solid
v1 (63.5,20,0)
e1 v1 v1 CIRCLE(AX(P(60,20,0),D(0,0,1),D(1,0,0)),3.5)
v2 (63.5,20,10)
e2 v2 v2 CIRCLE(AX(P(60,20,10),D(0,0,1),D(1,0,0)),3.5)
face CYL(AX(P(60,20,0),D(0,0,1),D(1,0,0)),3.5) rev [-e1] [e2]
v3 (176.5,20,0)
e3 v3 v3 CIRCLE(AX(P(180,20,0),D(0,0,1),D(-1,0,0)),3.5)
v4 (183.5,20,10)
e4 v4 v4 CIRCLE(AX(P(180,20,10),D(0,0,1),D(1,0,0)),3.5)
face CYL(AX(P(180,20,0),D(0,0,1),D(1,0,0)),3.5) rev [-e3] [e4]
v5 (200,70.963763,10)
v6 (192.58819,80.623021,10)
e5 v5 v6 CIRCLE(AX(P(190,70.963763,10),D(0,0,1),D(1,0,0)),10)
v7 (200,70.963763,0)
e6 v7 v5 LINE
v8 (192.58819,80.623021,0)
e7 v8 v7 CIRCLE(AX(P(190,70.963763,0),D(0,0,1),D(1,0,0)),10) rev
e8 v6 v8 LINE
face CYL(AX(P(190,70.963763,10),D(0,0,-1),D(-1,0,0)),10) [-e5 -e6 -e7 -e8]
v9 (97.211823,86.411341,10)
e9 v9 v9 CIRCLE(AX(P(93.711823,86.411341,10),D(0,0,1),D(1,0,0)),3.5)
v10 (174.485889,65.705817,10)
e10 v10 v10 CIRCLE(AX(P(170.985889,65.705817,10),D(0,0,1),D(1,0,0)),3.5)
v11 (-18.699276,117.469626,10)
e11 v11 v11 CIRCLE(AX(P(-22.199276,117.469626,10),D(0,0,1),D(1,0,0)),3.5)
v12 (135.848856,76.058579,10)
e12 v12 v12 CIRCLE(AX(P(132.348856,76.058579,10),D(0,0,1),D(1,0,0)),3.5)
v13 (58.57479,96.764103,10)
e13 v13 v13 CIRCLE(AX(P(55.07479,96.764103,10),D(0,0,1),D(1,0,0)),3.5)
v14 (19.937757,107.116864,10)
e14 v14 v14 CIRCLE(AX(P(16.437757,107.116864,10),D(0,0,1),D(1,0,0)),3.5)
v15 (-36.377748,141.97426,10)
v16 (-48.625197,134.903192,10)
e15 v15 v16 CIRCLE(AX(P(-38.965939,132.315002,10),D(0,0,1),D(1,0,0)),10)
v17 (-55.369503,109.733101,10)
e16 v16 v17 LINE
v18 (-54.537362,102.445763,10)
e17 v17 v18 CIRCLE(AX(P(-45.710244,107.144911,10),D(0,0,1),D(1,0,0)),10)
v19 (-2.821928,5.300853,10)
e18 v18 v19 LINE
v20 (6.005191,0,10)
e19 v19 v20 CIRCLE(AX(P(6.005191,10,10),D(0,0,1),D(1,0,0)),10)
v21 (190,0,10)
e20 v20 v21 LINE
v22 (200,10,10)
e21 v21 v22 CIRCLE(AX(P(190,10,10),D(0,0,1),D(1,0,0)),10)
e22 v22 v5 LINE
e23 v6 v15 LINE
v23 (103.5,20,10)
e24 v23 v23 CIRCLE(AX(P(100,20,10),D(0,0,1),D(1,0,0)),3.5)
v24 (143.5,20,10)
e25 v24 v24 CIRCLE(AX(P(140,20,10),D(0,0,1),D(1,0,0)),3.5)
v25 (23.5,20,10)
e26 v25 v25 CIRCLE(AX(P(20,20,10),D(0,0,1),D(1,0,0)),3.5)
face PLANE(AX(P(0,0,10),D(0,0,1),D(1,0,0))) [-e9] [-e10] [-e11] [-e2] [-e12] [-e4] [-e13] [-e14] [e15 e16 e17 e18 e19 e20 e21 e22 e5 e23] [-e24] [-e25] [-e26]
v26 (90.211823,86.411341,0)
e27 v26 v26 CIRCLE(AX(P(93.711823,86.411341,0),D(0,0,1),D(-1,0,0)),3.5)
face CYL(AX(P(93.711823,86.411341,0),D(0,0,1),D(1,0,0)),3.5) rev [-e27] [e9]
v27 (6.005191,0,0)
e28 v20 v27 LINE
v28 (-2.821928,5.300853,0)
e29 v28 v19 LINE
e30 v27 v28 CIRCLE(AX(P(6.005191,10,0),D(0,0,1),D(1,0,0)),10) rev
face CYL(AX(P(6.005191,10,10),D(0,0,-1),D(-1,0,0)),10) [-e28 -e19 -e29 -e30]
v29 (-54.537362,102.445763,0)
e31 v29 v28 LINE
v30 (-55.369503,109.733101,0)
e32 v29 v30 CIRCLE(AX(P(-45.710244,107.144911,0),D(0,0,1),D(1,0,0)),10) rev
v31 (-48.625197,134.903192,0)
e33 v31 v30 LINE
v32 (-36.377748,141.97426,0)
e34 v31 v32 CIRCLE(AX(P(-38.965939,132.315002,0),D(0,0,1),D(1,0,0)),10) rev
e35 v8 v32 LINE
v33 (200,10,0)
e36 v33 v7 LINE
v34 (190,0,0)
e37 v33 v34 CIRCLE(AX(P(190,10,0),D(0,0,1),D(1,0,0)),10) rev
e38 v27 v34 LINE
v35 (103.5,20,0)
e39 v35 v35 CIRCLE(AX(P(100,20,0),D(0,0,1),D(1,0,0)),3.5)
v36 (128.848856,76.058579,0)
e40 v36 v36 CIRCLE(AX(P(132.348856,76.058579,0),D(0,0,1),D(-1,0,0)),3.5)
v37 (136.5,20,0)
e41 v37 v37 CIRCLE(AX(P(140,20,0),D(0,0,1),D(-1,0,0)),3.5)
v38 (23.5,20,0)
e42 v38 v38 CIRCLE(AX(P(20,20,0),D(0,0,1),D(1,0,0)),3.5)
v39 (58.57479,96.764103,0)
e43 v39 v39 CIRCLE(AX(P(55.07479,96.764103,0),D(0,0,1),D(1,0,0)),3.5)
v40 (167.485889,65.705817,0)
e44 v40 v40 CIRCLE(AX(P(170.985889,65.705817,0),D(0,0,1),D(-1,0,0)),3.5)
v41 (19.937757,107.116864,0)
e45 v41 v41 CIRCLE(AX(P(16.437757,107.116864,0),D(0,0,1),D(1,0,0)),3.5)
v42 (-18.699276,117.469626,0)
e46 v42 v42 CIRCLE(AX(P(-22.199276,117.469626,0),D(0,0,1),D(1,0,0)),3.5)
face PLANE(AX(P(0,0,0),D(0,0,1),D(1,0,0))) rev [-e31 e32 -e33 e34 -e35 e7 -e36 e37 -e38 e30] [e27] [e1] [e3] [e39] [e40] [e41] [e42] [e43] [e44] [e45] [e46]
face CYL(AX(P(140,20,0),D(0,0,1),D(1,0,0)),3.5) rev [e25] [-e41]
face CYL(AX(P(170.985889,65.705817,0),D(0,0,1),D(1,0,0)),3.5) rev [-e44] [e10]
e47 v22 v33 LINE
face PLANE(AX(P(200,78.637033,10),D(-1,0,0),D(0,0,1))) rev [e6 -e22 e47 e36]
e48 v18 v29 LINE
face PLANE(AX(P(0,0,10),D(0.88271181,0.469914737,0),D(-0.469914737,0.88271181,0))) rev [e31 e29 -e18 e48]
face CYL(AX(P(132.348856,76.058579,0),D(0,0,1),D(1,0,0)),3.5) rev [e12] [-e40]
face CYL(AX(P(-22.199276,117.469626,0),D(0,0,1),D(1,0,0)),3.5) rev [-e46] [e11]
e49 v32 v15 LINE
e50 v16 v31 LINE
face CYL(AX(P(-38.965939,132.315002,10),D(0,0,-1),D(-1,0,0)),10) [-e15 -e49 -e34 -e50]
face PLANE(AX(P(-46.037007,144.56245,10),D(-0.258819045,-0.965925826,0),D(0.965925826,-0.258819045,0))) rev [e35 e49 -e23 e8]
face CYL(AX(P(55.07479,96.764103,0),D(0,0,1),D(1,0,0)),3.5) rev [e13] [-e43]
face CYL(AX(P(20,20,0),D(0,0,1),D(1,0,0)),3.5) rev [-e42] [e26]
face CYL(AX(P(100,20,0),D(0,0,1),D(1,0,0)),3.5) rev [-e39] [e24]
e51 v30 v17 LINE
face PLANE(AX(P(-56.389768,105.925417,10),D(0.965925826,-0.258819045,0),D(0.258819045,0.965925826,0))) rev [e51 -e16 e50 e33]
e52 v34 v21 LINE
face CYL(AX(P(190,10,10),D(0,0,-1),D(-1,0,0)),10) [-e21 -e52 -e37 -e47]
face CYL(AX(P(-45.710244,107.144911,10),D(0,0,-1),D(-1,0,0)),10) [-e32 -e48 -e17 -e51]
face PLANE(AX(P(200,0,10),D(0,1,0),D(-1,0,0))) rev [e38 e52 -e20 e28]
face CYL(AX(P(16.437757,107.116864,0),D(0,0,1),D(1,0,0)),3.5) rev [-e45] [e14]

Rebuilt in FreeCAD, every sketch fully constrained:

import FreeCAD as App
import Part
import Sketcher
from FreeCAD import Vector
Q = App.Units.Quantity


def edges_at(feature, points):
    """Names of the edges that pass closest to the given points."""
    edges = feature.Shape.Edges
    near = lambda p: min(range(len(edges)), key=lambda i: edges[i].distToShape(Part.Vertex(*p))[0])
    return sorted({f"Edge{near(p) + 1}" for p in points})

doc = App.newDocument("Part")
body = doc.addObject("PartDesign::Body", "Body")

# Sketch on XY plane
sketch1 = body.newObject("Sketcher::SketchObject", "Sketch")
sketch1.AttachmentSupport = (doc.getObject("XY_Plane"), [""])
sketch1.MapMode = "FlatFace"
sketch1.addGeometry(Part.LineSegment(Vector(-56.389768, 105.925417, 0), Vector(0, 0, 0)), False)
sketch1.addGeometry(Part.LineSegment(Vector(0, 0, 0), Vector(200, 0, 0)), False)
sketch1.addGeometry(Part.LineSegment(Vector(200, 0, 0), Vector(200, 78.637033, 0)), False)
sketch1.addGeometry(Part.LineSegment(Vector(200, 78.637033, 0), Vector(-46.037007, 144.56245, 0)), False)
sketch1.addGeometry(Part.LineSegment(Vector(-46.037007, 144.56245, 0), Vector(-56.389768, 105.925417, 0)), False)
sketch1.addConstraint(Sketcher.Constraint("Coincident", 0, 2, 1, 1))
sketch1.addConstraint(Sketcher.Constraint("Coincident", 1, 2, 2, 1))
sketch1.addConstraint(Sketcher.Constraint("Coincident", 2, 2, 3, 1))
sketch1.addConstraint(Sketcher.Constraint("Coincident", 3, 2, 4, 1))
sketch1.addConstraint(Sketcher.Constraint("Coincident", 4, 2, 0, 1))
sketch1.addConstraint(Sketcher.Constraint("Horizontal", 1))
sketch1.addConstraint(Sketcher.Constraint("Vertical", 2))
sketch1.addConstraint(Sketcher.Constraint("Coincident", 0, 2, -1, 1))
sketch1.addConstraint(Sketcher.Constraint("Perpendicular", 3, 4))
sketch1.addConstraint(Sketcher.Constraint("DistanceX", 1, 1, 1, 2, 200.0))
sketch1.addConstraint(Sketcher.Constraint("Angle", 3, Q("165 deg")))
sketch1.addConstraint(Sketcher.Constraint("Distance", 0, 120.0))
sketch1.addConstraint(Sketcher.Constraint("Distance", 4, 40.0))
sketch1.addConstraint(Sketcher.Constraint("DistanceY", 2, 1, 2, 2, 78.637033))
pad1 = body.newObject("PartDesign::Pad", "Pad")
pad1.Profile = sketch1
pad1.Length = 10
doc.recompute()

fillet = body.newObject("PartDesign::Fillet", "Fillet")
fillet.Base = (pad1, edges_at(pad1, [
    (0, 0, 5),
    (-56.39, 105.925, 5),
    (-46.037, 144.562, 5),
    (200, 78.637, 5),
    (200, 0, 5),
]))
fillet.Radius = 10

# Sketch on XY plane
sketch2 = body.newObject("Sketcher::SketchObject", "Sketch001")
sketch2.AttachmentSupport = (doc.getObject("XY_Plane"), [""])
sketch2.MapMode = "FlatFace"
sketch2.AttachmentOffset = App.Placement(Vector(0, 0, 10), App.Rotation())
sketch2.addGeometry(Part.Circle(Vector(-22.199276, 117.469626, 0), Vector(0, 0, 1), 3.5), False)
sketch2.addGeometry(Part.Circle(Vector(16.437757, 107.116864, 0), Vector(0, 0, 1), 3.5), False)
sketch2.addGeometry(Part.Circle(Vector(55.07479, 96.764103, 0), Vector(0, 0, 1), 3.5), False)
sketch2.addGeometry(Part.Circle(Vector(93.711823, 86.411341, 0), Vector(0, 0, 1), 3.5), False)
sketch2.addGeometry(Part.Circle(Vector(132.348856, 76.058579, 0), Vector(0, 0, 1), 3.5), False)
sketch2.addGeometry(Part.Circle(Vector(170.985889, 65.705817, 0), Vector(0, 0, 1), 3.5), False)
sketch2.addGeometry(Part.Circle(Vector(20, 20, 0), Vector(0, 0, 1), 3.5), False)
sketch2.addGeometry(Part.Circle(Vector(60, 20, 0), Vector(0, 0, 1), 3.5), False)
sketch2.addGeometry(Part.Circle(Vector(100, 20, 0), Vector(0, 0, 1), 3.5), False)
sketch2.addGeometry(Part.Circle(Vector(180, 20, 0), Vector(0, 0, 1), 3.5), False)
sketch2.addGeometry(Part.Circle(Vector(140, 20, 0), Vector(0, 0, 1), 3.5), False)
sketch2.addConstraint(Sketcher.Constraint("Equal", 0, 1))
sketch2.addConstraint(Sketcher.Constraint("Equal", 1, 2))
sketch2.addConstraint(Sketcher.Constraint("Equal", 2, 3))
sketch2.addConstraint(Sketcher.Constraint("Equal", 3, 4))
sketch2.addConstraint(Sketcher.Constraint("Equal", 4, 5))
sketch2.addConstraint(Sketcher.Constraint("Equal", 5, 6))
sketch2.addConstraint(Sketcher.Constraint("Equal", 6, 7))
sketch2.addConstraint(Sketcher.Constraint("Equal", 7, 8))
sketch2.addConstraint(Sketcher.Constraint("Equal", 8, 9))
sketch2.addConstraint(Sketcher.Constraint("Equal", 9, 10))
sketch2.addConstraint(Sketcher.Constraint("Horizontal", 6, 3, 7, 3))
sketch2.addConstraint(Sketcher.Constraint("Horizontal", 7, 3, 8, 3))
sketch2.addConstraint(Sketcher.Constraint("Horizontal", 8, 3, 9, 3))
sketch2.addConstraint(Sketcher.Constraint("Horizontal", 9, 3, 10, 3))
sketch2.addConstraint(Sketcher.Constraint("Diameter", 0, 7.0))
sketch2.addConstraint(Sketcher.Constraint("DistanceX", -1, 1, 6, 3, 20.0))
sketch2.addConstraint(Sketcher.Constraint("DistanceY", -1, 1, 6, 3, 20.0))
sketch2.addConstraint(Sketcher.Constraint("DistanceX", -1, 1, 7, 3, 60.0))
sketch2.addConstraint(Sketcher.Constraint("DistanceX", -1, 1, 8, 3, 100.0))
sketch2.addConstraint(Sketcher.Constraint("DistanceX", -1, 1, 9, 3, 180.0))
sketch2.addConstraint(Sketcher.Constraint("DistanceX", -1, 1, 10, 3, 140.0))
sketch2.addConstraint(Sketcher.Constraint("DistanceX", 0, 3, 3, 3, 115.911099))
sketch2.addConstraint(Sketcher.Constraint("DistanceX", 1, 3, 4, 3, 115.911099))
sketch2.addConstraint(Sketcher.Constraint("DistanceX", 2, 3, 5, 3, 115.911099))
sketch2.addConstraint(Sketcher.Constraint("DistanceX", -1, 1, 2, 3, 55.07479))
sketch2.addConstraint(Sketcher.Constraint("DistanceY", -1, 1, 3, 3, 86.411341))
sketch2.addConstraint(Sketcher.Constraint("DistanceY", -1, 1, 4, 3, 76.058579))
sketch2.addConstraint(Sketcher.Constraint("DistanceY", 1, 3, 0, 3, 10.352762))
sketch2.addConstraint(Sketcher.Constraint("DistanceY", 2, 3, 1, 3, 10.352762))
sketch2.addConstraint(Sketcher.Constraint("DistanceY", 3, 3, 2, 3, 10.352762))
sketch2.addConstraint(Sketcher.Constraint("DistanceY", 5, 3, 4, 3, 10.352762))
sketch2.addConstraint(Sketcher.Constraint("DistanceX", 0, 3, -1, 1, 22.199276))
sketch2.addConstraint(Sketcher.Constraint("DistanceX", -1, 1, 1, 3, 16.437757))
pocket1 = body.newObject("PartDesign::Pocket", "Pocket")
pocket1.Profile = sketch2
pocket1.Type = "ThroughAll"
pocket1.Midplane = True

doc.recompute()
